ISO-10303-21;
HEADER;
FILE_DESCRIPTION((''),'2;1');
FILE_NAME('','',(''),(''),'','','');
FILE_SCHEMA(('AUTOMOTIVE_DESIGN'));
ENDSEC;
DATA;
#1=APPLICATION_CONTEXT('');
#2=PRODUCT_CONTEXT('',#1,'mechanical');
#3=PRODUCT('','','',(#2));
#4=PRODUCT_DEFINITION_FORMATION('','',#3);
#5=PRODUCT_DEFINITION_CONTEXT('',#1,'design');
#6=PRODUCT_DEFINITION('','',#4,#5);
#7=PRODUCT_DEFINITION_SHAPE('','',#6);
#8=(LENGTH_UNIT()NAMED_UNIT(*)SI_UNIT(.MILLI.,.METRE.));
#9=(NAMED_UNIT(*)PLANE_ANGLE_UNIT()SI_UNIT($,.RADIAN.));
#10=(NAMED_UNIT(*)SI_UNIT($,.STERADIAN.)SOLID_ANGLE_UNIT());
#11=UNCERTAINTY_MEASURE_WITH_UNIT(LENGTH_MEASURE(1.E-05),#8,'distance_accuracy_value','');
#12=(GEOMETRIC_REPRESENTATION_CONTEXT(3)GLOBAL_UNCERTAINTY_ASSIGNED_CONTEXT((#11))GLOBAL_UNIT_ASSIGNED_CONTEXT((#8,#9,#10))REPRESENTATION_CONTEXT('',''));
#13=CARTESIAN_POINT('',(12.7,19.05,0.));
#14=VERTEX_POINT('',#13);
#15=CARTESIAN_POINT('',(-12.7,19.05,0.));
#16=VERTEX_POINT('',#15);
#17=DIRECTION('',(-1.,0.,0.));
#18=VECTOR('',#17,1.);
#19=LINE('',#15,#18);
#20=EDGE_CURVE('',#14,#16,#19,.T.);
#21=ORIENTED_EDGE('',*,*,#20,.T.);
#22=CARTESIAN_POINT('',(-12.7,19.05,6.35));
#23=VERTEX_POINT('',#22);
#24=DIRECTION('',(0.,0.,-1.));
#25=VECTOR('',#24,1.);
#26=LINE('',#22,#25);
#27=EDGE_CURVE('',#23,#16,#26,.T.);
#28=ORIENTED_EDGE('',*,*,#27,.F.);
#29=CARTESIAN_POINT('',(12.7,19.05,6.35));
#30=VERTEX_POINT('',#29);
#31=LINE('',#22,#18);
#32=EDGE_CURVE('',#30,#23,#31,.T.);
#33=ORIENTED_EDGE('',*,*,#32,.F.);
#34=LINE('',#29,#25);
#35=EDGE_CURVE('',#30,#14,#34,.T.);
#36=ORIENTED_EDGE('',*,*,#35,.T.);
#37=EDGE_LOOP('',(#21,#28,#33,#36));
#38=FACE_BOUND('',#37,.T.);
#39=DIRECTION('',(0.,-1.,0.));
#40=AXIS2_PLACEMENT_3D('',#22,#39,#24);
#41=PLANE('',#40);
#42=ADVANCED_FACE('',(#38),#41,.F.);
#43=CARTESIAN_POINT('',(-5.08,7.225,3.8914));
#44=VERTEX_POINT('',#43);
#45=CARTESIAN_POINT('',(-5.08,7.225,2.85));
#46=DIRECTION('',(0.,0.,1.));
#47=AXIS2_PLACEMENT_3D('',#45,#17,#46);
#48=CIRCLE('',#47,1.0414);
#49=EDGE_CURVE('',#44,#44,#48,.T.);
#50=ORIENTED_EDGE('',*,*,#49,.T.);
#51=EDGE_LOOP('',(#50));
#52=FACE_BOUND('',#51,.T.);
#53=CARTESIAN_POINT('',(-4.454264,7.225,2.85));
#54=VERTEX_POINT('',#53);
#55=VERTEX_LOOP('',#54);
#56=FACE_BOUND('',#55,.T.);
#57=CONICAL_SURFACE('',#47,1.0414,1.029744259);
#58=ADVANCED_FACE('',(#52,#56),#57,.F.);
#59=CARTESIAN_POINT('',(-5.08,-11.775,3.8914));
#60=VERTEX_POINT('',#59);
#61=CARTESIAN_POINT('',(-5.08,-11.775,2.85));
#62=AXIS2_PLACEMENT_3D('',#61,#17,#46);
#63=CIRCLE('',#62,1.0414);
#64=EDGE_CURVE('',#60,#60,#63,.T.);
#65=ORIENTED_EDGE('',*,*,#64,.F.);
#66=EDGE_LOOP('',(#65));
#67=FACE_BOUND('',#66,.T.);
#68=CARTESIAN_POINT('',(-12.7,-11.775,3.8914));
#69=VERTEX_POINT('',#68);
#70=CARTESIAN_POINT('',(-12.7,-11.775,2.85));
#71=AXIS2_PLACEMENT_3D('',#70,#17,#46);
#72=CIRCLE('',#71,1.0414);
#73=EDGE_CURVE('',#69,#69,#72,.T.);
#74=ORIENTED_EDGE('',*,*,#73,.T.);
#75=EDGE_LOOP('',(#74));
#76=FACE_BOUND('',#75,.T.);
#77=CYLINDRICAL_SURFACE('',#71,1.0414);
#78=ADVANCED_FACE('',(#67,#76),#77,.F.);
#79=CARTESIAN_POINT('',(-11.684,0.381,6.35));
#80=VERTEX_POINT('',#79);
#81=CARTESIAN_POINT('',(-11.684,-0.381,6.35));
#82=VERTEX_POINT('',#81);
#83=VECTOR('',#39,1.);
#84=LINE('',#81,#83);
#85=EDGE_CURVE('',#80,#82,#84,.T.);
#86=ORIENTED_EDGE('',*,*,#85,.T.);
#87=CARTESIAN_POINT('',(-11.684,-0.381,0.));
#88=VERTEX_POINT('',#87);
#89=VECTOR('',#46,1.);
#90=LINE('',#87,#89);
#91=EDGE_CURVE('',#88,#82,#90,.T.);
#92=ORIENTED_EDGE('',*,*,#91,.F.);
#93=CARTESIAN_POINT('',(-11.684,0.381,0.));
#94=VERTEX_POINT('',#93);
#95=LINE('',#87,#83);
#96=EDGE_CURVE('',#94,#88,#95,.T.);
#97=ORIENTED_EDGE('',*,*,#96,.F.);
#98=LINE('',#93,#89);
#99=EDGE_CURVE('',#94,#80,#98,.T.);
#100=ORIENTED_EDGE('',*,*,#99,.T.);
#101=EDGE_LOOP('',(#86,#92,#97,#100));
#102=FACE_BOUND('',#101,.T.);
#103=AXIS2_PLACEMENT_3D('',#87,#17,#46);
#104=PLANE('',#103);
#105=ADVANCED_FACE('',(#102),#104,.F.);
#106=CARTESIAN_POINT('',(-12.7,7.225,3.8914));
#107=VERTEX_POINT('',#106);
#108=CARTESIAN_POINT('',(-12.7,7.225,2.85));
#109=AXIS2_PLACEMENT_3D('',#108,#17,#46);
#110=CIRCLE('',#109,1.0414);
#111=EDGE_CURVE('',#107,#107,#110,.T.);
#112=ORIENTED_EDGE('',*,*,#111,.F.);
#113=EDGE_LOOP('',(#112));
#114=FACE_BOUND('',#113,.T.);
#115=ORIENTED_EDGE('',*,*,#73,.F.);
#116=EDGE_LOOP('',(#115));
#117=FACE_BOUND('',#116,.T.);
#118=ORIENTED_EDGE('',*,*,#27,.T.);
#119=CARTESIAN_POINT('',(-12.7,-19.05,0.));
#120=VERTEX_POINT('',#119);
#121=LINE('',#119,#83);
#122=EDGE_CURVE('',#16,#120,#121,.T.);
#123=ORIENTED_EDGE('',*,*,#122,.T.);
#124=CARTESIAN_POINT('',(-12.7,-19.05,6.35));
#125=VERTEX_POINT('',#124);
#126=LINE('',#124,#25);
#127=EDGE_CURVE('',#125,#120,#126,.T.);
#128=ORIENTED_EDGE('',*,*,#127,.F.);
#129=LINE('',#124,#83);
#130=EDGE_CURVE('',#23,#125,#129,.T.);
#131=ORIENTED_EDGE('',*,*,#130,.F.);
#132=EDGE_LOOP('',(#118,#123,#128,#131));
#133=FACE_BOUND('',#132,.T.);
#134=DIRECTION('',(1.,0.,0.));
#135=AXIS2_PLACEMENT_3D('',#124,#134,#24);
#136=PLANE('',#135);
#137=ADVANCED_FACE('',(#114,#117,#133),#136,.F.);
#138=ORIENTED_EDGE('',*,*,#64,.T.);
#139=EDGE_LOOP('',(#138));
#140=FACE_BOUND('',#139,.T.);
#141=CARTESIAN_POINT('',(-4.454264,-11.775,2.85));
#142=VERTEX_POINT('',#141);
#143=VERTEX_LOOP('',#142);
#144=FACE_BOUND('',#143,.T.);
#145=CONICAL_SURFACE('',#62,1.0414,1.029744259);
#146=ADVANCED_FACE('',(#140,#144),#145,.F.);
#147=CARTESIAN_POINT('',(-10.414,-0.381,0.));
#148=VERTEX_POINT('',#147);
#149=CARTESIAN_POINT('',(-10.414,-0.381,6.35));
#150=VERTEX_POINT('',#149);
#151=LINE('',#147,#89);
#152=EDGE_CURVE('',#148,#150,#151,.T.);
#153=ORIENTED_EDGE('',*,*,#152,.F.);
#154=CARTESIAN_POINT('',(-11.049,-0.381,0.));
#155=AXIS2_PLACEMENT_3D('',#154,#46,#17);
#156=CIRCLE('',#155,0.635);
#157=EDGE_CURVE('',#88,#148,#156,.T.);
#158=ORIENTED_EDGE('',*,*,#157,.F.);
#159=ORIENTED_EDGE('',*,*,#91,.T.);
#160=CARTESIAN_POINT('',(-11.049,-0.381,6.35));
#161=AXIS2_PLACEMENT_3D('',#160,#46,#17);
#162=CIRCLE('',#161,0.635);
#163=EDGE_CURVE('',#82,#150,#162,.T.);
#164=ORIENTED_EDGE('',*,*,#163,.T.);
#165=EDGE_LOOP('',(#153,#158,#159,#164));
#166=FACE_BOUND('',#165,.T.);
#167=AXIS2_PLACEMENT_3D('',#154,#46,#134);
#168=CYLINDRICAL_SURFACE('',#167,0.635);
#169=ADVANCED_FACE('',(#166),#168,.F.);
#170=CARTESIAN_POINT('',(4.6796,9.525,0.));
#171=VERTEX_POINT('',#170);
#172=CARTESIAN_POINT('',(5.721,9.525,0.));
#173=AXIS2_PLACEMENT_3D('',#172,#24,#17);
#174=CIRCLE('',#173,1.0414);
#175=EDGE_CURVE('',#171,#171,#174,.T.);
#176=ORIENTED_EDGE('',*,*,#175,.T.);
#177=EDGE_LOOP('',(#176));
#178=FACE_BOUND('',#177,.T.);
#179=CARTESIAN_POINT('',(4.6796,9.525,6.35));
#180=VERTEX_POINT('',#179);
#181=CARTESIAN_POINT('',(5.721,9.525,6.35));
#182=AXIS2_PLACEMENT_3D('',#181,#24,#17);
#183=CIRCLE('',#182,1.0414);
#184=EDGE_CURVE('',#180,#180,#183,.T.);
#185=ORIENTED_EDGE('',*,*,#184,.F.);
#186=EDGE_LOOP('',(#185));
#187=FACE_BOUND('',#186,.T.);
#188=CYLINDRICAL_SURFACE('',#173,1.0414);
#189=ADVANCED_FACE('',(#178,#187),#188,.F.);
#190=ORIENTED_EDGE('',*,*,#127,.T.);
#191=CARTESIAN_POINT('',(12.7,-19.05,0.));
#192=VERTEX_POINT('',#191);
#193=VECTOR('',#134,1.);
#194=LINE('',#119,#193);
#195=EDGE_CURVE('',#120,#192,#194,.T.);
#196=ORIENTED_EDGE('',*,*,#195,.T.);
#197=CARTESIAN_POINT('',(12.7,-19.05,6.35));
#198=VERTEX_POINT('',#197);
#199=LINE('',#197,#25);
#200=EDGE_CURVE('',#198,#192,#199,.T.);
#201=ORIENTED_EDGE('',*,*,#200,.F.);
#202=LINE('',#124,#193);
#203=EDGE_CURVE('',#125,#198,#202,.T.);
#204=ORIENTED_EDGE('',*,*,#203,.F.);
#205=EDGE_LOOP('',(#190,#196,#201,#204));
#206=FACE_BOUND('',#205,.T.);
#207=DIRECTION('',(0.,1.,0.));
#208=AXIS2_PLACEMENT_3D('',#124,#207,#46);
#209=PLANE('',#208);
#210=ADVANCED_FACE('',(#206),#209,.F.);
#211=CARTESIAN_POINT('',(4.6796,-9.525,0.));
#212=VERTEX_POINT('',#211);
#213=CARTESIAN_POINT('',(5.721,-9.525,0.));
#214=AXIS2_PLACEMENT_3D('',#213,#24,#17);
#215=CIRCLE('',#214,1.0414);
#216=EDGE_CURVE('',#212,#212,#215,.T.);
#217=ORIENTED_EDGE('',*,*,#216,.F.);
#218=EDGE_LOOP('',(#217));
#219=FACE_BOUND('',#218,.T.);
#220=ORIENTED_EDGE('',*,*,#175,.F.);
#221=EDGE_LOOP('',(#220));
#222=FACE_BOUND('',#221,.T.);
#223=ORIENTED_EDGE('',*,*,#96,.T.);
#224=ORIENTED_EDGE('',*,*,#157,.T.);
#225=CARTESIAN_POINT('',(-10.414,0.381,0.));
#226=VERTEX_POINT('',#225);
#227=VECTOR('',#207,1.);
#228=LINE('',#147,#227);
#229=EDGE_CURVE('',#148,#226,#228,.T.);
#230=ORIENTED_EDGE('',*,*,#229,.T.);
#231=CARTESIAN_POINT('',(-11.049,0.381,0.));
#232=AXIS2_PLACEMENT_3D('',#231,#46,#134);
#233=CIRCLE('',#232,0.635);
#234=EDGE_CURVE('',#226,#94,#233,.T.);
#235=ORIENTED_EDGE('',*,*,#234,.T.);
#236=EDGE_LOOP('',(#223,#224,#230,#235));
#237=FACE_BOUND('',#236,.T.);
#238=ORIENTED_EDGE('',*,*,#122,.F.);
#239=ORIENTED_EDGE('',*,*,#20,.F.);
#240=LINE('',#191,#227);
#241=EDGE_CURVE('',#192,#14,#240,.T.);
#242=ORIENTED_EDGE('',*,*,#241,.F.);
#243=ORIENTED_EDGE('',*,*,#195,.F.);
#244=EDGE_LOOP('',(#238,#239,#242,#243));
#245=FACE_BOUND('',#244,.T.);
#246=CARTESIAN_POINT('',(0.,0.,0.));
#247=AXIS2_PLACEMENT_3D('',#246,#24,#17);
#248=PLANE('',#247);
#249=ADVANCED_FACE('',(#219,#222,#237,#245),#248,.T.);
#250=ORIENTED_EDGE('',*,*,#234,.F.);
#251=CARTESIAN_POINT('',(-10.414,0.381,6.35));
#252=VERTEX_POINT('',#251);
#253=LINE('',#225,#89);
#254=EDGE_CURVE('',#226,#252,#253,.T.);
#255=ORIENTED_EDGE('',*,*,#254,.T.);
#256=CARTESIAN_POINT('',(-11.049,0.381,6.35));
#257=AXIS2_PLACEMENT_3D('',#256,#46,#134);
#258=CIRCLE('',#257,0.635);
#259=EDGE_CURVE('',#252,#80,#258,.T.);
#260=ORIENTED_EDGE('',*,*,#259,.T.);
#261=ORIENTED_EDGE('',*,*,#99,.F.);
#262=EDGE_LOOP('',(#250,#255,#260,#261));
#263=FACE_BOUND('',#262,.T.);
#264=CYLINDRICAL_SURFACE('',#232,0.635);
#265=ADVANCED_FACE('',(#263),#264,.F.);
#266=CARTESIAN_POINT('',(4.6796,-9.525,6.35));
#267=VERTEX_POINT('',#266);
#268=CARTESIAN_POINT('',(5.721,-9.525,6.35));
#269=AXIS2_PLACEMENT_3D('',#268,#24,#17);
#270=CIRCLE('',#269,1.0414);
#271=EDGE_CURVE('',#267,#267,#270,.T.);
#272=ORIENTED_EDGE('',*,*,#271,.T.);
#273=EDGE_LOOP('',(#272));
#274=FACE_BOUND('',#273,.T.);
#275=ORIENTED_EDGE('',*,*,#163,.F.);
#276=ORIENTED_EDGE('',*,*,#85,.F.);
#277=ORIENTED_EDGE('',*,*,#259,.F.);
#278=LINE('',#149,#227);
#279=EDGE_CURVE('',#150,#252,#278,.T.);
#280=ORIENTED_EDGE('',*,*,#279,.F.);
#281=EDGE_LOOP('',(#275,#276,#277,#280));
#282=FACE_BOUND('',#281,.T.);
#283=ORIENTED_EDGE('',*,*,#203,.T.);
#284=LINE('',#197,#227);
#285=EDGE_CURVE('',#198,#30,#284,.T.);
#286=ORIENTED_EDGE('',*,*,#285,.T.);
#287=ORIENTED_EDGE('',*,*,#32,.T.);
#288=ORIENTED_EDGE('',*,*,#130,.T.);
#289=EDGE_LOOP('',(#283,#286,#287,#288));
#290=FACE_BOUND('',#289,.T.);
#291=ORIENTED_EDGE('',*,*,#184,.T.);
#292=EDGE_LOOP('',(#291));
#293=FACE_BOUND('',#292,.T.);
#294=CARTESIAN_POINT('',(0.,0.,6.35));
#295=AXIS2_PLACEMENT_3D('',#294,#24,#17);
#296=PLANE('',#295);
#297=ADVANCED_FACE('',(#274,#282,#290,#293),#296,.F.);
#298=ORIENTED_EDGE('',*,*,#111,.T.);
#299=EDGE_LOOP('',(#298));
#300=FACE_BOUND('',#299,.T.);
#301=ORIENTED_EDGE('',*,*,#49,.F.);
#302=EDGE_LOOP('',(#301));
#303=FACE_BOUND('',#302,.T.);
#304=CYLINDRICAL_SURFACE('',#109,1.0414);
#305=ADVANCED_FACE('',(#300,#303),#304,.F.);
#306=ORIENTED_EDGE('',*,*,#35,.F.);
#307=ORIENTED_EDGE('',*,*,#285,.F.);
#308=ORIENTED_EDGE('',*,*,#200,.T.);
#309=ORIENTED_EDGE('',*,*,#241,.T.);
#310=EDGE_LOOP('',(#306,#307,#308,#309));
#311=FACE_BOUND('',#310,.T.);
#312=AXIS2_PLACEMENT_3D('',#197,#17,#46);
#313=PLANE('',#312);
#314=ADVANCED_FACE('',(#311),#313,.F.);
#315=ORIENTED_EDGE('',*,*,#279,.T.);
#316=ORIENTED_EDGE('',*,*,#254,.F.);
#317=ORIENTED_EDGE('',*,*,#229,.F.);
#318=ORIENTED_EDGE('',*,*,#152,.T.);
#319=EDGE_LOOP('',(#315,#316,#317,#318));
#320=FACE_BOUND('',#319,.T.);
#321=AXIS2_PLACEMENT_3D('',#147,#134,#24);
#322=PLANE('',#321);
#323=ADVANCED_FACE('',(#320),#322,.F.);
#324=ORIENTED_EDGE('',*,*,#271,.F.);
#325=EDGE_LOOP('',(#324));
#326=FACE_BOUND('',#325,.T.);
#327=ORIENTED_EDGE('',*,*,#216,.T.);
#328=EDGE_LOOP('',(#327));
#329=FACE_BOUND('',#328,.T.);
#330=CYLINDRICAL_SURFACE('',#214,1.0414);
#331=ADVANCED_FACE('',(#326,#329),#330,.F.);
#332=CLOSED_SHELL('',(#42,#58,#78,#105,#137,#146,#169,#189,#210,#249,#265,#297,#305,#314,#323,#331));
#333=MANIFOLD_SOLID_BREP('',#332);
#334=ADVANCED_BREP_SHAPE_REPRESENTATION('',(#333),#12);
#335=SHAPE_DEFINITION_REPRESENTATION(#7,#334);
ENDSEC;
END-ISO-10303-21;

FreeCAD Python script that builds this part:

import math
import FreeCAD as App
import Part
import Sketcher
Q = App.Units.Quantity

doc = App.newDocument("Part")
body = doc.addObject("PartDesign::Body", "Body")

sketch1 = body.newObject("Sketcher::SketchObject", "Sketch")
sketch1.AttachmentSupport = (doc.getObject("XY_Plane"), [""])
sketch1.MapMode = "FlatFace"
sketch1.addGeometry(Part.LineSegment(App.Vector(-13, 19, 0), App.Vector(-13, -19, 0)), False)
sketch1.addGeometry(Part.LineSegment(App.Vector(-13, -19, 0), App.Vector(13, -19, 0)), False)
sketch1.addGeometry(Part.LineSegment(App.Vector(13, -19, 0), App.Vector(13, 19, 0)), False)
sketch1.addGeometry(Part.LineSegment(App.Vector(13, 19, 0), App.Vector(-13, 19, 0)), False)
sketch1.addConstraint(Sketcher.Constraint("Coincident", 0, 2, 1, 1))
sketch1.addConstraint(Sketcher.Constraint("Coincident", 1, 2, 2, 1))
sketch1.addConstraint(Sketcher.Constraint("Coincident", 2, 2, 3, 1))
sketch1.addConstraint(Sketcher.Constraint("Coincident", 3, 2, 0, 1))
sketch1.addConstraint(Sketcher.Constraint("Vertical", 0))
sketch1.addConstraint(Sketcher.Constraint("Horizontal", 1))
sketch1.addConstraint(Sketcher.Constraint("Vertical", 2))
sketch1.addConstraint(Sketcher.Constraint("Horizontal", 3))
sketch1.addConstraint(Sketcher.Constraint("Symmetric", 0, 2, 2, 2, -1, 1))
sketch1.addConstraint(Sketcher.Constraint("DistanceX", 1, 1, 1, 2, Q("1 in")))
sketch1.addConstraint(Sketcher.Constraint("DistanceY", 0, 2, 0, 1, Q("1.5 in")))
pad1 = body.newObject("PartDesign::Pad", "Pad")
pad1.Profile = sketch1
pad1.Length = Q("0.25 in")

sketch2 = body.newObject("Sketcher::SketchObject", "Sketch001")
sketch2.AttachmentSupport = (doc.getObject("YZ_Plane"), [""])
sketch2.MapMode = "FlatFace"
sketch2.AttachmentOffset = App.Placement(App.Vector(0, 0, -0.5 * 25.4), App.Rotation())
sketch2.addGeometry(Part.Circle(App.Vector(7.2, 2.9, 0), App.Vector(0, 0, 1), 1), False)
sketch2.addGeometry(Part.Circle(App.Vector(-11.8, 2.8, 0), App.Vector(0, 0, 1), 1), False)
sketch2.addConstraint(Sketcher.Constraint("Equal", 0, 1))
sketch2.addConstraint(Sketcher.Constraint("Horizontal", 0, 3, 1, 3))
sketch2.addConstraint(Sketcher.Constraint("Diameter", 0, Q("0.082 in")))
sketch2.addConstraint(Sketcher.Constraint("DistanceX", -1, 1, 0, 3, Q("7.225 mm")))
sketch2.addConstraint(Sketcher.Constraint("DistanceY", -1, 1, 0, 3, Q("2.85 mm")))
sketch2.addConstraint(Sketcher.Constraint("DistanceX", 1, 3, -1, 1, Q("11.775 mm")))
doc.recompute()
hole = body.newObject("PartDesign::Hole", "Hole")
hole.Profile = sketch2
hole.ThreadType = "None"
hole.Diameter = Q("0.082 in")
hole.DepthType = "Dimension"
hole.Depth = Q("0.3 in")
hole.DrillPoint = "Angled"
hole.DrillPointAngle = 118
hole.Reversed = True

sketch3 = body.newObject("Sketcher::SketchObject", "Sketch002")
sketch3.AttachmentSupport = (doc.getObject("XY_Plane"), [""])
sketch3.MapMode = "FlatFace"
sketch3.AttachmentOffset = App.Placement(App.Vector(0, 0, 0.25 * 25.4), App.Rotation())
sketch3.addGeometry(Part.LineSegment(App.Vector(-10.4, -0.4, 0), App.Vector(-10.4, 0.4, 0)), False)
sketch3.addGeometry(Part.ArcOfCircle(Part.Circle(App.Vector(-11, 0.4, 0), App.Vector(0, 0, 1), 0.6), math.radians(0), math.radians(180)), False)
sketch3.addGeometry(Part.LineSegment(App.Vector(-11.7, 0.4, 0), App.Vector(-11.7, -0.4, 0)), False)
sketch3.addGeometry(Part.ArcOfCircle(Part.Circle(App.Vector(-11, -0.4, 0), App.Vector(0, 0, 1), 0.6), math.radians(180), math.radians(360)), False)
sketch3.addConstraint(Sketcher.Constraint("Tangent", 0, 2, 1, 1))
sketch3.addConstraint(Sketcher.Constraint("Tangent", 1, 2, 2, 1))
sketch3.addConstraint(Sketcher.Constraint("Tangent", 2, 2, 3, 1))
sketch3.addConstraint(Sketcher.Constraint("Tangent", 3, 2, 0, 1))
sketch3.addConstraint(Sketcher.Constraint("Vertical", 0))
sketch3.addConstraint(Sketcher.Constraint("Vertical", 2))
sketch3.addConstraint(Sketcher.Constraint("Radius", 1, Q("0.025 in")))
sketch3.addConstraint(Sketcher.Constraint("DistanceY", 0, 1, 0, 2, Q("0.03 in")))
sketch3.addConstraint(Sketcher.Constraint("DistanceX", 0, 2, -1, 1, Q("0.41 in")))
sketch3.addConstraint(Sketcher.Constraint("DistanceY", -1, 1, 1, 3, Q("0.015 in")))
pocket1 = body.newObject("PartDesign::Pocket", "Pocket")
pocket1.Profile = sketch3
pocket1.Type = "ThroughAll"

sketch4 = body.newObject("Sketcher::SketchObject", "Sketch003")
sketch4.AttachmentSupport = (doc.getObject("XY_Plane"), [""])
sketch4.MapMode = "FlatFace"
sketch4.addGeometry(Part.Circle(App.Vector(5.7, 9.5, 0), App.Vector(0, 0, 1), 1), False)
sketch4.addGeometry(Part.Circle(App.Vector(5.7, -9.5, 0), App.Vector(0, 0, 1), 1), False)
sketch4.addConstraint(Sketcher.Constraint("Equal", 0, 1))
sketch4.addConstraint(Sketcher.Constraint("Symmetric", 0, 3, 1, 3, -1))
sketch4.addConstraint(Sketcher.Constraint("Diameter", 0, Q("0.082 in")))
sketch4.addConstraint(Sketcher.Constraint("DistanceY", 1, 3, 0, 3, Q("0.75 in")))
sketch4.addConstraint(Sketcher.Constraint("DistanceX", -1, 1, 0, 3, Q("5.721 mm")))
doc.recompute()
hole2 = body.newObject("PartDesign::Hole", "Hole001")
hole2.Profile = sketch4
hole2.ThreadType = "None"
hole2.Diameter = Q("0.082 in")
hole2.DepthType = "Dimension"
hole2.Depth = Q("0.3 in")
hole2.DrillPoint = "Angled"
hole2.DrillPointAngle = 118
hole2.Reversed = True

doc.recompute()
